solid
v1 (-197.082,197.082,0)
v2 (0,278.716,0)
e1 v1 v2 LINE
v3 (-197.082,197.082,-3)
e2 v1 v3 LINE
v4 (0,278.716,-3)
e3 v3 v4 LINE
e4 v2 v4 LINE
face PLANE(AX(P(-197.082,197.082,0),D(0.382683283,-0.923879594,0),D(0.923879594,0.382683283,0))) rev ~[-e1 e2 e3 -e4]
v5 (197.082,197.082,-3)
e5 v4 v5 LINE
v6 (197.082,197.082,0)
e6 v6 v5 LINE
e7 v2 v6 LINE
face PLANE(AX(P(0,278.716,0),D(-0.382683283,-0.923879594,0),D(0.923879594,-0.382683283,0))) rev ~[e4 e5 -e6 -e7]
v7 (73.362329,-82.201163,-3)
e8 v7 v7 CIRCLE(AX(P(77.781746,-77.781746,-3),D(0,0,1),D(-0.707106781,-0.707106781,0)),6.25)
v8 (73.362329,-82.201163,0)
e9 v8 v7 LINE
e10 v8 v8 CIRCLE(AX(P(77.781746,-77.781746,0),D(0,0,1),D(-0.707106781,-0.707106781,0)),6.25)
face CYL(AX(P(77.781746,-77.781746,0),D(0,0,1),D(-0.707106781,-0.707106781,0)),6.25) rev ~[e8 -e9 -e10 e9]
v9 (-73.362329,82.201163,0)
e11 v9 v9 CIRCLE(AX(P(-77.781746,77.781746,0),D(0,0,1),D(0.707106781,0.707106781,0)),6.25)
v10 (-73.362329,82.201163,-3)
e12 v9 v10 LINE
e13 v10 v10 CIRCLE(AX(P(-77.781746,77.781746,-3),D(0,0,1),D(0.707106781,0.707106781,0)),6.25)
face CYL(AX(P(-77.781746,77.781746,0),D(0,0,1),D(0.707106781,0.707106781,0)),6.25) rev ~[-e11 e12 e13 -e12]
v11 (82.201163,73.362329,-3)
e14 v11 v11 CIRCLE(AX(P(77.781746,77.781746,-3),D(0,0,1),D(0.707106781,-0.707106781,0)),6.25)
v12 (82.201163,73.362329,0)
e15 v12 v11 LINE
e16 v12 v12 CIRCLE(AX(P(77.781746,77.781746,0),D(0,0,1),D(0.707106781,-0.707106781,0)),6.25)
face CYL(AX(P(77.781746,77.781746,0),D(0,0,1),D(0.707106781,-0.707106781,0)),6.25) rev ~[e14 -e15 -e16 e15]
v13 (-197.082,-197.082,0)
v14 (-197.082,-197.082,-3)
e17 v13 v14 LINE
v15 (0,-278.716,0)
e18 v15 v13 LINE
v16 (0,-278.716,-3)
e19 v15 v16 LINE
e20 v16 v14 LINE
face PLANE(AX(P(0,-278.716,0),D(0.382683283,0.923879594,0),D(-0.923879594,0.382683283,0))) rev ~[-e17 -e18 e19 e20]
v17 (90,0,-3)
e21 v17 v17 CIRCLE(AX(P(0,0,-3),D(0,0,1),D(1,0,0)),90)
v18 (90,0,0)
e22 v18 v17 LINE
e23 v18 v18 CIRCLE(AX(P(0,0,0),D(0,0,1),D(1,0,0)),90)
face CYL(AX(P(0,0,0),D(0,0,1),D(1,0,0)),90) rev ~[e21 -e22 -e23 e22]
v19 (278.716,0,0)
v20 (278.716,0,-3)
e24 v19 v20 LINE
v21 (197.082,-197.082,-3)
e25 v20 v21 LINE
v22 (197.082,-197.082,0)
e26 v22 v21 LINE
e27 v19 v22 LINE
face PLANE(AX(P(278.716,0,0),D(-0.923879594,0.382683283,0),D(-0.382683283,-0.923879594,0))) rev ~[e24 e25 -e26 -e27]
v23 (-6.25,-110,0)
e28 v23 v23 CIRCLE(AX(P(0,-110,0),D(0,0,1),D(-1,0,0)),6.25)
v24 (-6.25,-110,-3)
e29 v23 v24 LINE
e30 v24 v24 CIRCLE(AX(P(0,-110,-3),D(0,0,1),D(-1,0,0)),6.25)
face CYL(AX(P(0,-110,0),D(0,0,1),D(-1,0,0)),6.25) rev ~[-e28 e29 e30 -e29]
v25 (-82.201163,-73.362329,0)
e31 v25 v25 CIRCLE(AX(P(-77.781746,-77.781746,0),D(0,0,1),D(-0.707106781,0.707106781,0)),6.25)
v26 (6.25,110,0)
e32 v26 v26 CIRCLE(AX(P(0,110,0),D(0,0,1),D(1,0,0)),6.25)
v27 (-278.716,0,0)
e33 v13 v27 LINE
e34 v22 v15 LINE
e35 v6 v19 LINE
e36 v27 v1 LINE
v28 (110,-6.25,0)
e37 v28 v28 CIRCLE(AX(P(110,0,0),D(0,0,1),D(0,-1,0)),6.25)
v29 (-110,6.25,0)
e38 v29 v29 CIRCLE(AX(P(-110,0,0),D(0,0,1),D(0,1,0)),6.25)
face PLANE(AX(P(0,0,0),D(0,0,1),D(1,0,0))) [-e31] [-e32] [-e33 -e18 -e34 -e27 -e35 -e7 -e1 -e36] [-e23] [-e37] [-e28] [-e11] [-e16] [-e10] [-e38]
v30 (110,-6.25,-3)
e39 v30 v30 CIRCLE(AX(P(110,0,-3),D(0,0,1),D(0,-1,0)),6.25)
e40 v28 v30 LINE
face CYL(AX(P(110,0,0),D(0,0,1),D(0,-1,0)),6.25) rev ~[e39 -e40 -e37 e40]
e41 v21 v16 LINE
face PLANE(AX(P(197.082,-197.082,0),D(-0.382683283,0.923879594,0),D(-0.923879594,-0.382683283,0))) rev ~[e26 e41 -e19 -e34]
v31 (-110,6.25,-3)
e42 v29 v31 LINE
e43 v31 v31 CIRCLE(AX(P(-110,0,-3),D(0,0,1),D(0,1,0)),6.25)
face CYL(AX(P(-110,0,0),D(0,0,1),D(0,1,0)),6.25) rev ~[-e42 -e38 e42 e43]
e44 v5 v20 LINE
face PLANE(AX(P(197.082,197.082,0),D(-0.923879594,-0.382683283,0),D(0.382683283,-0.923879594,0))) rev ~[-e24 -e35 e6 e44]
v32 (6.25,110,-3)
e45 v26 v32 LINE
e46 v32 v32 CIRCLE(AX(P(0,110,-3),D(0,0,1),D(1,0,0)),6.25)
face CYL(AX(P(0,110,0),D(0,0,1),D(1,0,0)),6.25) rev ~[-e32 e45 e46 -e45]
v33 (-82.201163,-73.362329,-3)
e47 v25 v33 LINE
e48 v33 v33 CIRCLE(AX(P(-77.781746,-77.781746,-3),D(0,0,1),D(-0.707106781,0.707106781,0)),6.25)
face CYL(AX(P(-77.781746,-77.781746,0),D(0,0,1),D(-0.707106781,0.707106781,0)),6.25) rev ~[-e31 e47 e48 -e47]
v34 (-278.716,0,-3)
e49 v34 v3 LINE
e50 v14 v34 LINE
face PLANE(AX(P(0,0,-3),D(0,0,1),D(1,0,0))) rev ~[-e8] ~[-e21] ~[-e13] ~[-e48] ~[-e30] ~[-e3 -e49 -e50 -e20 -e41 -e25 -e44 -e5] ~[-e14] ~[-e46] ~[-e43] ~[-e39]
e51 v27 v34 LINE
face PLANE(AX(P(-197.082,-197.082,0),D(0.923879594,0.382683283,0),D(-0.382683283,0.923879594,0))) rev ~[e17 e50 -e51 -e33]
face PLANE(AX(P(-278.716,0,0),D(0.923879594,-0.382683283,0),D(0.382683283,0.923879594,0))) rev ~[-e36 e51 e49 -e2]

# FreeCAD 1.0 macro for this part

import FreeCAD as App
import Part
import Sketcher

V = App.Vector
Q = App.Units.Quantity


def add_polygon(sketch, points):
    """Adds a closed chain of lines whose ends are joined by coincident constraints."""
    first, n = sketch.GeometryCount, len(points)
    for a, b in zip(points, points[1:] + points[:1]):
        sketch.addGeometry(Part.LineSegment(App.Vector(*a, 0), App.Vector(*b, 0)), False)
    for i in range(n):
        sketch.addConstraint(Sketcher.Constraint("Coincident", first + i, 2, first + (i + 1) % n, 1))

doc = App.newDocument("Part")
body = doc.addObject("PartDesign::Body", "Body")

# Sketch on XY plane
sketch1 = doc.addObject("Sketcher::SketchObject", "Sketch")
body.addObject(sketch1)
sketch1.AttachmentSupport = (doc.XY_Plane, [""])
sketch1.MapMode = "FlatFace"
add_polygon(sketch1, [(0, 279), (-197, 197), (-279, 0), (-197, -197), (0, -279), (197, -197), (279, 0), (197, 197)])  # lines 0-7
sketch1.addGeometry(Part.Circle(V(0, 0, 0), V(0, 0, 1), 90), False)  # 8
sketch1.addConstraint([
    Sketcher.Constraint("Coincident", 8, 3, -1, 1),
    Sketcher.Constraint("Symmetric", 0, 2, 4, 2, -1, 1),
    Sketcher.Constraint("Symmetric", 1, 2, 5, 2, -1, 1),
    Sketcher.Constraint("Symmetric", 2, 2, 6, 2, -1, 1),
    Sketcher.Constraint("Symmetric", 3, 2, 7, 2, -1, 1),
    Sketcher.Constraint("Symmetric", 2, 2, 4, 2, -2),
    Sketcher.Constraint("PointOnObject", 1, 2, -1),
    Sketcher.Constraint("PointOnObject", 3, 2, -2),
    Sketcher.Constraint("Perpendicular", 0, 2),
    Sketcher.Constraint("Equal", 0, 1),
    Sketcher.Constraint("Diameter", 8, Q("180 mm")),
    Sketcher.Constraint("Angle", 0, Q("-157.5 deg")),
    Sketcher.Constraint("Distance", 0, Q("213.32 mm")),
])
pad1 = doc.addObject("PartDesign::Pad", "Pad")
body.addObject(pad1)
pad1.Profile = sketch1
pad1.Length = 3
pad1.Reversed = True

# Sketch on XY plane
sketch2 = doc.addObject("Sketcher::SketchObject", "Sketch001")
body.addObject(sketch2)
sketch2.AttachmentSupport = (doc.XY_Plane, [""])
sketch2.MapMode = "FlatFace"
sketch2.addGeometry(Part.Circle(V(0, 110, 0), V(0, 0, 1), 6), False)
sketch2.addConstraint([
    Sketcher.Constraint("PointOnObject", 0, 3, -2),
    Sketcher.Constraint("Diameter", 0, Q("12.5 mm")),
    Sketcher.Constraint("DistanceY", -1, 1, 0, 3, Q("110 mm")),
])
pocket1 = doc.addObject("PartDesign::Pocket", "Pocket")
body.addObject(pocket1)
pocket1.Profile = sketch2
pocket1.Length = 3
doc.recompute()

polarpattern = doc.addObject("PartDesign::PolarPattern", "PolarPattern")
body.addObject(polarpattern)
polarpattern.Originals = [pocket1]
polarpattern.Axis = (doc.Z_Axis, [""])
polarpattern.Angle = 360
polarpattern.Occurrences = 8
body.Tip = polarpattern

doc.recompute()
